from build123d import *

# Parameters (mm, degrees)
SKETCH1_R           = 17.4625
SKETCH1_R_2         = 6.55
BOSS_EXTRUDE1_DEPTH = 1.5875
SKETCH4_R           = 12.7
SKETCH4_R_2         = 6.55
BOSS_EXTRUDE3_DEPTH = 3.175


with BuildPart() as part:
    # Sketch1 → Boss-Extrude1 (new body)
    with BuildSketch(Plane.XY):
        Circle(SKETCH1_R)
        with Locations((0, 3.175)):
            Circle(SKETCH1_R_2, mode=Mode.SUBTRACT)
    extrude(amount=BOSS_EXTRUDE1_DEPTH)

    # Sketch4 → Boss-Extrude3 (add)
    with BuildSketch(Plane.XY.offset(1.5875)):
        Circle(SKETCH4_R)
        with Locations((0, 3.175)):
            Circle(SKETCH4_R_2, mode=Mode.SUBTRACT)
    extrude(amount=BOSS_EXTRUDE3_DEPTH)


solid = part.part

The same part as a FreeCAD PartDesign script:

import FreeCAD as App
import Part
import Sketcher

V = App.Vector
Q = App.Units.Quantity

doc = App.newDocument("Part")
body = doc.addObject("PartDesign::Body", "Body")

# Sketch on XY plane
sketch1 = body.newObject("Sketcher::SketchObject", "Sketch")
sketch1.AttachmentSupport = (doc.getObject("XY_Plane"), [""])
sketch1.MapMode = "FlatFace"
sketch1.addGeometry([
    Part.Circle(V(0, 0, 0), V(0, 0, 1), 17.4625),
    Part.Circle(V(0, 3.175, 0), V(0, 0, 1), 6.55),
], False)
sketch1.addConstraint([
    Sketcher.Constraint("Coincident", 0, 3, -1, 1),
    Sketcher.Constraint("PointOnObject", 1, 3, -2),
    Sketcher.Constraint("Diameter", 0, Q("1.375 in")),
    Sketcher.Constraint("Diameter", 1, Q("13.1 mm")),
    Sketcher.Constraint("DistanceY", -1, 1, 1, 3, Q("0.125 in")),
])
pad1 = body.newObject("PartDesign::Pad", "Pad")
pad1.Profile = sketch1
pad1.Length = Q("0.0625 in")

# Sketch on XY plane
sketch2 = body.newObject("Sketcher::SketchObject", "Sketch001")
sketch2.AttachmentSupport = (doc.getObject("XY_Plane"), [""])
sketch2.MapMode = "FlatFace"
sketch2.AttachmentOffset = App.Placement(V(0, 0, 0.0625 * 25.4), App.Rotation())
sketch2.addGeometry([
    Part.Circle(V(0, 0, 0), V(0, 0, 1), 12.7),
    Part.Circle(V(0, 3.175, 0), V(0, 0, 1), 6.55),
], False)
sketch2.addConstraint([
    Sketcher.Constraint("Coincident", 0, 3, -1, 1),
    Sketcher.Constraint("PointOnObject", 1, 3, -2),
    Sketcher.Constraint("Diameter", 0, Q("1 in")),
    Sketcher.Constraint("Diameter", 1, Q("13.1 mm")),
    Sketcher.Constraint("DistanceY", -1, 1, 1, 3, Q("0.125 in")),
])
pad2 = body.newObject("PartDesign::Pad", "Pad001")
pad2.Profile = sketch2
pad2.Length = Q("0.125 in")

doc.recompute()
